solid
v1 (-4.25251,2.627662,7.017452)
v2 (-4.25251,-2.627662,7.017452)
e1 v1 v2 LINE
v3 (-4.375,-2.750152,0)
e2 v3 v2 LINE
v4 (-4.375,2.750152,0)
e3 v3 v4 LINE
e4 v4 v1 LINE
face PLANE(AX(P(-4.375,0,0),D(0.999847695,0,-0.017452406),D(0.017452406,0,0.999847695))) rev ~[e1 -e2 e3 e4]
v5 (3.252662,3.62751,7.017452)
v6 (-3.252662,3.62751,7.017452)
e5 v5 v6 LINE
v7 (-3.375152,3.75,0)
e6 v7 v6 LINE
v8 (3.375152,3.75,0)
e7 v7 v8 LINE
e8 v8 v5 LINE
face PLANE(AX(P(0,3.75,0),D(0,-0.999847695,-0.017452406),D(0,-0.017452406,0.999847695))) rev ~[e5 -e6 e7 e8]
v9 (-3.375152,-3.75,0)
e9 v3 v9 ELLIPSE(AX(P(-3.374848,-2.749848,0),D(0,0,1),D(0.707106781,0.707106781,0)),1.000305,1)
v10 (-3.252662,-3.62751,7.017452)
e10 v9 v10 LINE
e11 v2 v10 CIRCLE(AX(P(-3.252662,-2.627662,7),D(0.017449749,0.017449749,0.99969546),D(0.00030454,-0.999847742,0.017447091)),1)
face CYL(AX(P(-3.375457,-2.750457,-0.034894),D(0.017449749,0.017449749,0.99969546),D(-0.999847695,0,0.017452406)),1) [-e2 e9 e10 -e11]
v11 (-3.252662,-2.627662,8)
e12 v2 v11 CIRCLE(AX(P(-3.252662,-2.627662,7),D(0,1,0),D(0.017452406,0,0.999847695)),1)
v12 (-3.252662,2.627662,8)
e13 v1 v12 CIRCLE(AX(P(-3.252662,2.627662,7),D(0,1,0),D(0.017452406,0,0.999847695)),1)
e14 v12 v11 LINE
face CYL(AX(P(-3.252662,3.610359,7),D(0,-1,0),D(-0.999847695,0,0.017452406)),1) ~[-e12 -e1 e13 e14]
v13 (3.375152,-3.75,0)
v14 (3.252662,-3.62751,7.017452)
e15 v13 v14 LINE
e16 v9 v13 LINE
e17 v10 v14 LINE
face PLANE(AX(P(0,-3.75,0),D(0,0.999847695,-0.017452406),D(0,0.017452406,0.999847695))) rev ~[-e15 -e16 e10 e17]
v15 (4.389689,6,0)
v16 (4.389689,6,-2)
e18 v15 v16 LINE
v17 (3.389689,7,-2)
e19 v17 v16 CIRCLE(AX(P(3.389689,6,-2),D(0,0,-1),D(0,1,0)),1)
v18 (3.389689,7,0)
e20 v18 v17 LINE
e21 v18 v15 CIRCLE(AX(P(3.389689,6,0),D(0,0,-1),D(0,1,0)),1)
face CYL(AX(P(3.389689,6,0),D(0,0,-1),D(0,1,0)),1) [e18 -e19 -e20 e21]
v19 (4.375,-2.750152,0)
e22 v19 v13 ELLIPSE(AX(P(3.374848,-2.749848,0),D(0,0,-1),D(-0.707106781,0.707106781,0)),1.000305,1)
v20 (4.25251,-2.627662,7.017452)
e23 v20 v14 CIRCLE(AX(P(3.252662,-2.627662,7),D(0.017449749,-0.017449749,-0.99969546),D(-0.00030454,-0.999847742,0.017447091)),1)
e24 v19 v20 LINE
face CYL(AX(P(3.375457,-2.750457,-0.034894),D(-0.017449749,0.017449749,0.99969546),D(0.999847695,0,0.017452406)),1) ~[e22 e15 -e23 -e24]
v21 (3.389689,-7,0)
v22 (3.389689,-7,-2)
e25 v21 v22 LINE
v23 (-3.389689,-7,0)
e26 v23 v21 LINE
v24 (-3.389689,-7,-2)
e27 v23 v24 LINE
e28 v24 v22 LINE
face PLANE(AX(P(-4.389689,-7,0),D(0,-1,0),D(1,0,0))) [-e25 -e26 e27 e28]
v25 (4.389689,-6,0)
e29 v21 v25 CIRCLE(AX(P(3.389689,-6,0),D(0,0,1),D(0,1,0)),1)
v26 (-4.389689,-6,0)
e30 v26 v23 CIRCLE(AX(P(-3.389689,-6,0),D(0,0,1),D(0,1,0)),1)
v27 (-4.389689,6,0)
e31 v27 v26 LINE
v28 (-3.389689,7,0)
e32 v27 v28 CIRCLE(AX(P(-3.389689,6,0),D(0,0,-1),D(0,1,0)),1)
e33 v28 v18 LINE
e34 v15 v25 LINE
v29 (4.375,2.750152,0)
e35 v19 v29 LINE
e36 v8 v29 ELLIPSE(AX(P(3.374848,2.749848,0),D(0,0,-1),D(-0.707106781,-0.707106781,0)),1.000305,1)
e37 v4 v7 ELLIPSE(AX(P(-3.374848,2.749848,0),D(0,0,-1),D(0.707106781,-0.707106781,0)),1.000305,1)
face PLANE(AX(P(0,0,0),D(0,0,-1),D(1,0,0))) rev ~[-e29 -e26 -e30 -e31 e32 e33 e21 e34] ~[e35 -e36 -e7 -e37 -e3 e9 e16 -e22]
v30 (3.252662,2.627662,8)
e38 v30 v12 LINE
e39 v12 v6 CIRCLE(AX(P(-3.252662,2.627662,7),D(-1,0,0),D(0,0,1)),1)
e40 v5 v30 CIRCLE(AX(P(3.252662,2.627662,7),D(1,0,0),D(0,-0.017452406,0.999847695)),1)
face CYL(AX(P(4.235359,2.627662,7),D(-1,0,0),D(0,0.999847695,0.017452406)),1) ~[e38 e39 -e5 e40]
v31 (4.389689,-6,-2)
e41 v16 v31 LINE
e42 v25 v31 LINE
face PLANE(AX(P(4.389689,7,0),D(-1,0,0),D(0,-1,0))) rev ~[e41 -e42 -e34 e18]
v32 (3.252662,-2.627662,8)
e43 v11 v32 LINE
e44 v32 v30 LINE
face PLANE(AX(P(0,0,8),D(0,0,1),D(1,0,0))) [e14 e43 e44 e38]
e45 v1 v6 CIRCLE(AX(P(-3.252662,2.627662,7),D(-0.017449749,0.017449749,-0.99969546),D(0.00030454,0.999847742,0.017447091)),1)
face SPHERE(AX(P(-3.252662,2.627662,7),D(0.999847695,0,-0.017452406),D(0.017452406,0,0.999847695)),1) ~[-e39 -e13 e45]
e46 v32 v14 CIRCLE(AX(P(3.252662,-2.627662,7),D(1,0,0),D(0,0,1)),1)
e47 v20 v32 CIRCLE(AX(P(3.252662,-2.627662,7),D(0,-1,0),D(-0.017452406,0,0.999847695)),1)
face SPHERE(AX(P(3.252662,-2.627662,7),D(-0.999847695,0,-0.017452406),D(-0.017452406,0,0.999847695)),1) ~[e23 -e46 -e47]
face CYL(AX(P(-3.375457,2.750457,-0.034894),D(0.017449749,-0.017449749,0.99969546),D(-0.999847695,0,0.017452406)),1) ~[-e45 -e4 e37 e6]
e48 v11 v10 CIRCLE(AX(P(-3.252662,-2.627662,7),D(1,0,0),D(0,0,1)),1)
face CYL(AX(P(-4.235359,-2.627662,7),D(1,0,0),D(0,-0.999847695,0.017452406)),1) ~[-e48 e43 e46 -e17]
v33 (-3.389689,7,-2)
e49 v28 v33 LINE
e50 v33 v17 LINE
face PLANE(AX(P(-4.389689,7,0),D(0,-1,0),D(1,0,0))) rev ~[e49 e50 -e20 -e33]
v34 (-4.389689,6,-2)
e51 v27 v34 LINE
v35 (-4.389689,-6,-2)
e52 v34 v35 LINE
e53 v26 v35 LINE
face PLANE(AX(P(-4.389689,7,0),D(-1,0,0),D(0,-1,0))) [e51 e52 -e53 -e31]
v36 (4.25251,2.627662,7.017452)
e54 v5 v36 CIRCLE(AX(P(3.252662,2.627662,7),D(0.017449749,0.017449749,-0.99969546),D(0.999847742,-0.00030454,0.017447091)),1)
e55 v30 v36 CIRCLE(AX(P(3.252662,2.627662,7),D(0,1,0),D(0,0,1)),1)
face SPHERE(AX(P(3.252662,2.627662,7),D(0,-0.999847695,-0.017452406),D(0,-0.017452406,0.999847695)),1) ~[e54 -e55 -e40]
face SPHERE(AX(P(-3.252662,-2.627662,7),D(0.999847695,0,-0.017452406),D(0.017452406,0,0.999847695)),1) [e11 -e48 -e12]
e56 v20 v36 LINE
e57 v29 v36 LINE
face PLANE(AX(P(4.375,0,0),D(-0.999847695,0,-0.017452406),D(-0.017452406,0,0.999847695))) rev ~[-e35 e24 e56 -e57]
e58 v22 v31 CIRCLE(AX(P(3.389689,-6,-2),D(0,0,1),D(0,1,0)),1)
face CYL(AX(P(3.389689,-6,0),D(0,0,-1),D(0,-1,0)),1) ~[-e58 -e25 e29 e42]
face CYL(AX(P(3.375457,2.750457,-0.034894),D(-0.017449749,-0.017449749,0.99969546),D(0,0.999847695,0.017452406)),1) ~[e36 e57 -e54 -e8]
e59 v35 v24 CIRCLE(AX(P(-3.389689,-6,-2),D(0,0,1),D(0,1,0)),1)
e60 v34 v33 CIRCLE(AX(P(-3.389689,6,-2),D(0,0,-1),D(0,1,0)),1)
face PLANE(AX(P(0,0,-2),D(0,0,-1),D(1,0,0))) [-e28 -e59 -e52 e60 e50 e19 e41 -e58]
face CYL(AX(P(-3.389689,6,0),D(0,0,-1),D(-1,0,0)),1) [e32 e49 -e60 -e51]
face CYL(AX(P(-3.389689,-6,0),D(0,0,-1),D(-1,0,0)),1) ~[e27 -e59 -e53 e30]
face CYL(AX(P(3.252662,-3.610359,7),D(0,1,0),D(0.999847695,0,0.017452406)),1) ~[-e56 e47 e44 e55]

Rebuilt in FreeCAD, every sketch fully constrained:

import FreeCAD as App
import Part
import Sketcher
from FreeCAD import Vector
Q = App.Units.Quantity


def edges_at(feature, points):
    """Names of the edges that pass closest to the given points."""
    edges = feature.Shape.Edges
    near = lambda p: min(range(len(edges)), key=lambda i: edges[i].distToShape(Part.Vertex(*p))[0])
    return sorted({f"Edge{near(p) + 1}" for p in points})


def add_polygon(sketch, points):
    """Adds a closed chain of lines whose ends are joined by coincident constraints."""
    first, n = sketch.GeometryCount, len(points)
    for a, b in zip(points, points[1:] + points[:1]):
        sketch.addGeometry(Part.LineSegment(App.Vector(*a, 0), App.Vector(*b, 0)), False)
    for i in range(n):
        sketch.addConstraint(Sketcher.Constraint("Coincident", first + i, 2, first + (i + 1) % n, 1))

doc = App.newDocument("Part")
body = doc.addObject("PartDesign::Body", "Body")

sketch1 = body.newObject("Sketcher::SketchObject", "Sketch")
sketch1.AttachmentSupport = (doc.getObject("XY_Plane"), [""])
sketch1.MapMode = "FlatFace"
add_polygon(sketch1, [(-4, 4), (-4, -4), (4, -4), (4, 4)])
sketch1.addConstraint(Sketcher.Constraint("Vertical", 0))
sketch1.addConstraint(Sketcher.Constraint("Horizontal", 1))
sketch1.addConstraint(Sketcher.Constraint("Vertical", 2))
sketch1.addConstraint(Sketcher.Constraint("Horizontal", 3))
sketch1.addConstraint(Sketcher.Constraint("Symmetric", 0, 2, 2, 2, -1, 1))
sketch1.addConstraint(Sketcher.Constraint("DistanceY", 0, 2, 0, 1, Q("7.5 mm")))
sketch1.addConstraint(Sketcher.Constraint("DistanceX", 1, 1, 1, 2, Q("8.75 mm")))
pad1 = body.newObject("PartDesign::Pad", "Pad")
pad1.Profile = sketch1
pad1.Length = 8
pad1.TaperAngle = -1

sketch2 = body.newObject("Sketcher::SketchObject", "Sketch001")
sketch2.AttachmentSupport = (doc.getObject("XY_Plane"), [""])
sketch2.MapMode = "FlatFace"
add_polygon(sketch2, [(-4, -7), (-4, 7), (4, 7), (4, -7)])
sketch2.addConstraint(Sketcher.Constraint("Vertical", 0))
sketch2.addConstraint(Sketcher.Constraint("Horizontal", 1))
sketch2.addConstraint(Sketcher.Constraint("Vertical", 2))
sketch2.addConstraint(Sketcher.Constraint("Horizontal", 3))
sketch2.addConstraint(Sketcher.Constraint("Symmetric", 0, 2, 2, 2, -1, 1))
sketch2.addConstraint(Sketcher.Constraint("DistanceY", 0, 1, 0, 2, Q("14 mm")))
sketch2.addConstraint(Sketcher.Constraint("DistanceX", 1, 1, 1, 2, Q("8.779377 mm")))
pad2 = body.newObject("PartDesign::Pad", "Pad001")
pad2.Profile = sketch2
pad2.Length = 2
pad2.Reversed = True
doc.recompute()

fillet = body.newObject("PartDesign::Fillet", "Fillet")
fillet.Base = (pad2, edges_at(pad2, [
    (0, -3.61, 8),
    (4.235, 0, 8),
    (0, 3.61, 8),
    (-4.235, 0, 8),
    (4.305, -3.68, 4),
    (-4.305, -3.68, 4),
    (-4.305, 3.68, 4),
    (4.305, 3.68, 4),
    (4.39, -7, -1),
    (-4.39, -7, -1),
    (4.39, 7, -1),
    (-4.39, 7, -1),
]))
fillet.Radius = 1

doc.recompute()
